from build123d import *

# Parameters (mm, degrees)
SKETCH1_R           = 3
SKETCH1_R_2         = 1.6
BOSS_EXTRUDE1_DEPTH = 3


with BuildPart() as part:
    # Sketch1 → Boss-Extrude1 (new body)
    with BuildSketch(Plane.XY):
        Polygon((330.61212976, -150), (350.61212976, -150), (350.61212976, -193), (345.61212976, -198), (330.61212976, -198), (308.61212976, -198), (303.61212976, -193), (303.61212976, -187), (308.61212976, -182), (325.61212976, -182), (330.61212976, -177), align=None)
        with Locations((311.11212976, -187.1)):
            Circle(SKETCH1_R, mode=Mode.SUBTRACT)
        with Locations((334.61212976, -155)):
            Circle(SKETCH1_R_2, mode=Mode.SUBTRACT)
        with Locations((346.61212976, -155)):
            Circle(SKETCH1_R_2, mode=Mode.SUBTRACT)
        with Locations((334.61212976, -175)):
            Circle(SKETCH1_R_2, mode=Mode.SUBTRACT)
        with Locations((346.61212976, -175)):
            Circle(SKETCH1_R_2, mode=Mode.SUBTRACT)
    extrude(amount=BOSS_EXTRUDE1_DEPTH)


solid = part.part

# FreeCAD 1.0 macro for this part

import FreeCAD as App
import Part
import Sketcher
from FreeCAD import Vector

doc = App.newDocument("Part")
params = doc.addObject("Spreadsheet::Sheet", "Params")
for row, (alias, value) in enumerate([
    ("sketch1_diameter", "6 mm"),
    ("sketch1_diameter2", "3.2 mm"),
    ("sketch1_width", "20 mm"),
    ("sketch1_width2", "17 mm"),
    ("sketch1_height", "27 mm"),
    ("pad1_length", "3 mm"),
], start=1):
    params.set(f"A{row}", alias)
    params.set(f"B{row}", "=" + value)
    params.setAlias(f"B{row}", alias)

body = doc.addObject("PartDesign::Body", "Body")

sketch1 = body.newObject("Sketcher::SketchObject", "Sketch")
sketch1.AttachmentSupport = (doc.getObject("XY_Plane"), [""])
sketch1.MapMode = "FlatFace"
sketch1.addGeometry(Part.LineSegment(Vector(350.61213, -150, 0), Vector(330.61213, -150, 0)), False)
sketch1.addGeometry(Part.LineSegment(Vector(330.61213, -150, 0), Vector(330.61213, -177, 0)), False)
sketch1.addGeometry(Part.LineSegment(Vector(330.61213, -177, 0), Vector(325.61213, -182, 0)), False)
sketch1.addGeometry(Part.LineSegment(Vector(325.61213, -182, 0), Vector(308.61213, -182, 0)), False)
sketch1.addGeometry(Part.LineSegment(Vector(308.61213, -182, 0), Vector(303.61213, -187, 0)), False)
sketch1.addGeometry(Part.LineSegment(Vector(303.61213, -187, 0), Vector(303.61213, -193, 0)), False)
sketch1.addGeometry(Part.LineSegment(Vector(303.61213, -193, 0), Vector(308.61213, -198, 0)), False)
sketch1.addGeometry(Part.LineSegment(Vector(308.61213, -198, 0), Vector(345.61213, -198, 0)), False)
sketch1.addGeometry(Part.LineSegment(Vector(345.61213, -198, 0), Vector(350.61213, -193, 0)), False)
sketch1.addGeometry(Part.LineSegment(Vector(350.61213, -193, 0), Vector(350.61213, -150, 0)), False)
sketch1.addGeometry(Part.Circle(Vector(346.61213, -175, 0), Vector(0, 0, 1), 1.6), False)
sketch1.addGeometry(Part.Circle(Vector(334.61213, -175, 0), Vector(0, 0, 1), 1.6), False)
sketch1.addGeometry(Part.Circle(Vector(311.11213, -187.1, 0), Vector(0, 0, 1), 3), False)
sketch1.addGeometry(Part.Circle(Vector(346.61213, -155, 0), Vector(0, 0, 1), 1.6), False)
sketch1.addGeometry(Part.Circle(Vector(334.61213, -155, 0), Vector(0, 0, 1), 1.6), False)
sketch1.addConstraint(Sketcher.Constraint("Coincident", 0, 2, 1, 1))
sketch1.addConstraint(Sketcher.Constraint("Coincident", 1, 2, 2, 1))
sketch1.addConstraint(Sketcher.Constraint("Coincident", 2, 2, 3, 1))
sketch1.addConstraint(Sketcher.Constraint("Coincident", 3, 2, 4, 1))
sketch1.addConstraint(Sketcher.Constraint("Coincident", 4, 2, 5, 1))
sketch1.addConstraint(Sketcher.Constraint("Coincident", 5, 2, 6, 1))
sketch1.addConstraint(Sketcher.Constraint("Coincident", 6, 2, 7, 1))
sketch1.addConstraint(Sketcher.Constraint("Coincident", 7, 2, 8, 1))
sketch1.addConstraint(Sketcher.Constraint("Coincident", 8, 2, 9, 1))
sketch1.addConstraint(Sketcher.Constraint("Coincident", 9, 2, 0, 1))
sketch1.addConstraint(Sketcher.Constraint("Horizontal", 0))
sketch1.addConstraint(Sketcher.Constraint("Vertical", 1))
sketch1.addConstraint(Sketcher.Constraint("Horizontal", 3))
sketch1.addConstraint(Sketcher.Constraint("Vertical", 5))
sketch1.addConstraint(Sketcher.Constraint("Horizontal", 7))
sketch1.addConstraint(Sketcher.Constraint("Vertical", 9))
sketch1.addConstraint(Sketcher.Constraint("Equal", 10, 11))
sketch1.addConstraint(Sketcher.Constraint("Equal", 11, 13))
sketch1.addConstraint(Sketcher.Constraint("Equal", 13, 14))
sketch1.addConstraint(Sketcher.Constraint("Parallel", 2, 4))
sketch1.addConstraint(Sketcher.Constraint("Perpendicular", 4, 6))
sketch1.addConstraint(Sketcher.Constraint("Perpendicular", 6, 8))
sketch1.addConstraint(Sketcher.Constraint("Horizontal", 10, 3, 11, 3))
sketch1.addConstraint(Sketcher.Constraint("Horizontal", 13, 3, 14, 3))
sketch1.addConstraint(Sketcher.Constraint("Horizontal", 5, 2, 8, 2))
sketch1.addConstraint(Sketcher.Constraint("Vertical", 10, 3, 13, 3))
sketch1.addConstraint(Sketcher.Constraint("Vertical", 11, 3, 14, 3))
sketch1.addConstraint(Sketcher.Constraint("Vertical", 3, 2, 6, 2))
sketch1.addConstraint(Sketcher.Constraint("Equal", 2, 4))
sketch1.addConstraint(Sketcher.Constraint("Equal", 4, 6))
sketch1.addConstraint(Sketcher.Constraint("Diameter", 12, 6.0))
sketch1.addConstraint(Sketcher.Constraint("Diameter", 10, 3.2))
sketch1.addConstraint(Sketcher.Constraint("DistanceX", 0, 2, 0, 1, 20.0))
sketch1.addConstraint(Sketcher.Constraint("DistanceX", 3, 2, 3, 1, 17.0))
sketch1.addConstraint(Sketcher.Constraint("DistanceY", 1, 2, 1, 1, 27.0))
sketch1.addConstraint(Sketcher.Constraint("DistanceY", 5, 2, 5, 1, 6.0))
sketch1.addConstraint(Sketcher.Constraint("DistanceY", 9, 1, 9, 2, 43.0))
sketch1.addConstraint(Sketcher.Constraint("DistanceY", 10, 3, -1, 1, 175.0))
sketch1.addConstraint(Sketcher.Constraint("DistanceY", 13, 3, -1, 1, 155.0))
sketch1.addConstraint(Sketcher.Constraint("DistanceY", 0, 2, -1, 1, 150.0))
sketch1.addConstraint(Sketcher.Constraint("DistanceX", 11, 3, 10, 3, 12.0))
sketch1.addConstraint(Sketcher.Constraint("DistanceX", 0, 2, 14, 3, 4.0))
sketch1.addConstraint(Sketcher.Constraint("DistanceY", 12, 3, -1, 1, 187.1))
sketch1.addConstraint(Sketcher.Constraint("DistanceX", 12, 3, 11, 3, 23.5))
sketch1.addConstraint(Sketcher.Constraint("DistanceX", -1, 1, 10, 3, 346.61213))
sketch1.setExpression("Constraints[30]", "Params.sketch1_diameter")
sketch1.setExpression("Constraints[31]", "Params.sketch1_diameter2")
sketch1.setExpression("Constraints[32]", "Params.sketch1_width")
sketch1.setExpression("Constraints[33]", "Params.sketch1_width2")
sketch1.setExpression("Constraints[34]", "Params.sketch1_height")
pad1 = body.newObject("PartDesign::Pad", "Pad")
pad1.Profile = sketch1
pad1.setExpression("Length", "Params.pad1_length")

doc.recompute()
